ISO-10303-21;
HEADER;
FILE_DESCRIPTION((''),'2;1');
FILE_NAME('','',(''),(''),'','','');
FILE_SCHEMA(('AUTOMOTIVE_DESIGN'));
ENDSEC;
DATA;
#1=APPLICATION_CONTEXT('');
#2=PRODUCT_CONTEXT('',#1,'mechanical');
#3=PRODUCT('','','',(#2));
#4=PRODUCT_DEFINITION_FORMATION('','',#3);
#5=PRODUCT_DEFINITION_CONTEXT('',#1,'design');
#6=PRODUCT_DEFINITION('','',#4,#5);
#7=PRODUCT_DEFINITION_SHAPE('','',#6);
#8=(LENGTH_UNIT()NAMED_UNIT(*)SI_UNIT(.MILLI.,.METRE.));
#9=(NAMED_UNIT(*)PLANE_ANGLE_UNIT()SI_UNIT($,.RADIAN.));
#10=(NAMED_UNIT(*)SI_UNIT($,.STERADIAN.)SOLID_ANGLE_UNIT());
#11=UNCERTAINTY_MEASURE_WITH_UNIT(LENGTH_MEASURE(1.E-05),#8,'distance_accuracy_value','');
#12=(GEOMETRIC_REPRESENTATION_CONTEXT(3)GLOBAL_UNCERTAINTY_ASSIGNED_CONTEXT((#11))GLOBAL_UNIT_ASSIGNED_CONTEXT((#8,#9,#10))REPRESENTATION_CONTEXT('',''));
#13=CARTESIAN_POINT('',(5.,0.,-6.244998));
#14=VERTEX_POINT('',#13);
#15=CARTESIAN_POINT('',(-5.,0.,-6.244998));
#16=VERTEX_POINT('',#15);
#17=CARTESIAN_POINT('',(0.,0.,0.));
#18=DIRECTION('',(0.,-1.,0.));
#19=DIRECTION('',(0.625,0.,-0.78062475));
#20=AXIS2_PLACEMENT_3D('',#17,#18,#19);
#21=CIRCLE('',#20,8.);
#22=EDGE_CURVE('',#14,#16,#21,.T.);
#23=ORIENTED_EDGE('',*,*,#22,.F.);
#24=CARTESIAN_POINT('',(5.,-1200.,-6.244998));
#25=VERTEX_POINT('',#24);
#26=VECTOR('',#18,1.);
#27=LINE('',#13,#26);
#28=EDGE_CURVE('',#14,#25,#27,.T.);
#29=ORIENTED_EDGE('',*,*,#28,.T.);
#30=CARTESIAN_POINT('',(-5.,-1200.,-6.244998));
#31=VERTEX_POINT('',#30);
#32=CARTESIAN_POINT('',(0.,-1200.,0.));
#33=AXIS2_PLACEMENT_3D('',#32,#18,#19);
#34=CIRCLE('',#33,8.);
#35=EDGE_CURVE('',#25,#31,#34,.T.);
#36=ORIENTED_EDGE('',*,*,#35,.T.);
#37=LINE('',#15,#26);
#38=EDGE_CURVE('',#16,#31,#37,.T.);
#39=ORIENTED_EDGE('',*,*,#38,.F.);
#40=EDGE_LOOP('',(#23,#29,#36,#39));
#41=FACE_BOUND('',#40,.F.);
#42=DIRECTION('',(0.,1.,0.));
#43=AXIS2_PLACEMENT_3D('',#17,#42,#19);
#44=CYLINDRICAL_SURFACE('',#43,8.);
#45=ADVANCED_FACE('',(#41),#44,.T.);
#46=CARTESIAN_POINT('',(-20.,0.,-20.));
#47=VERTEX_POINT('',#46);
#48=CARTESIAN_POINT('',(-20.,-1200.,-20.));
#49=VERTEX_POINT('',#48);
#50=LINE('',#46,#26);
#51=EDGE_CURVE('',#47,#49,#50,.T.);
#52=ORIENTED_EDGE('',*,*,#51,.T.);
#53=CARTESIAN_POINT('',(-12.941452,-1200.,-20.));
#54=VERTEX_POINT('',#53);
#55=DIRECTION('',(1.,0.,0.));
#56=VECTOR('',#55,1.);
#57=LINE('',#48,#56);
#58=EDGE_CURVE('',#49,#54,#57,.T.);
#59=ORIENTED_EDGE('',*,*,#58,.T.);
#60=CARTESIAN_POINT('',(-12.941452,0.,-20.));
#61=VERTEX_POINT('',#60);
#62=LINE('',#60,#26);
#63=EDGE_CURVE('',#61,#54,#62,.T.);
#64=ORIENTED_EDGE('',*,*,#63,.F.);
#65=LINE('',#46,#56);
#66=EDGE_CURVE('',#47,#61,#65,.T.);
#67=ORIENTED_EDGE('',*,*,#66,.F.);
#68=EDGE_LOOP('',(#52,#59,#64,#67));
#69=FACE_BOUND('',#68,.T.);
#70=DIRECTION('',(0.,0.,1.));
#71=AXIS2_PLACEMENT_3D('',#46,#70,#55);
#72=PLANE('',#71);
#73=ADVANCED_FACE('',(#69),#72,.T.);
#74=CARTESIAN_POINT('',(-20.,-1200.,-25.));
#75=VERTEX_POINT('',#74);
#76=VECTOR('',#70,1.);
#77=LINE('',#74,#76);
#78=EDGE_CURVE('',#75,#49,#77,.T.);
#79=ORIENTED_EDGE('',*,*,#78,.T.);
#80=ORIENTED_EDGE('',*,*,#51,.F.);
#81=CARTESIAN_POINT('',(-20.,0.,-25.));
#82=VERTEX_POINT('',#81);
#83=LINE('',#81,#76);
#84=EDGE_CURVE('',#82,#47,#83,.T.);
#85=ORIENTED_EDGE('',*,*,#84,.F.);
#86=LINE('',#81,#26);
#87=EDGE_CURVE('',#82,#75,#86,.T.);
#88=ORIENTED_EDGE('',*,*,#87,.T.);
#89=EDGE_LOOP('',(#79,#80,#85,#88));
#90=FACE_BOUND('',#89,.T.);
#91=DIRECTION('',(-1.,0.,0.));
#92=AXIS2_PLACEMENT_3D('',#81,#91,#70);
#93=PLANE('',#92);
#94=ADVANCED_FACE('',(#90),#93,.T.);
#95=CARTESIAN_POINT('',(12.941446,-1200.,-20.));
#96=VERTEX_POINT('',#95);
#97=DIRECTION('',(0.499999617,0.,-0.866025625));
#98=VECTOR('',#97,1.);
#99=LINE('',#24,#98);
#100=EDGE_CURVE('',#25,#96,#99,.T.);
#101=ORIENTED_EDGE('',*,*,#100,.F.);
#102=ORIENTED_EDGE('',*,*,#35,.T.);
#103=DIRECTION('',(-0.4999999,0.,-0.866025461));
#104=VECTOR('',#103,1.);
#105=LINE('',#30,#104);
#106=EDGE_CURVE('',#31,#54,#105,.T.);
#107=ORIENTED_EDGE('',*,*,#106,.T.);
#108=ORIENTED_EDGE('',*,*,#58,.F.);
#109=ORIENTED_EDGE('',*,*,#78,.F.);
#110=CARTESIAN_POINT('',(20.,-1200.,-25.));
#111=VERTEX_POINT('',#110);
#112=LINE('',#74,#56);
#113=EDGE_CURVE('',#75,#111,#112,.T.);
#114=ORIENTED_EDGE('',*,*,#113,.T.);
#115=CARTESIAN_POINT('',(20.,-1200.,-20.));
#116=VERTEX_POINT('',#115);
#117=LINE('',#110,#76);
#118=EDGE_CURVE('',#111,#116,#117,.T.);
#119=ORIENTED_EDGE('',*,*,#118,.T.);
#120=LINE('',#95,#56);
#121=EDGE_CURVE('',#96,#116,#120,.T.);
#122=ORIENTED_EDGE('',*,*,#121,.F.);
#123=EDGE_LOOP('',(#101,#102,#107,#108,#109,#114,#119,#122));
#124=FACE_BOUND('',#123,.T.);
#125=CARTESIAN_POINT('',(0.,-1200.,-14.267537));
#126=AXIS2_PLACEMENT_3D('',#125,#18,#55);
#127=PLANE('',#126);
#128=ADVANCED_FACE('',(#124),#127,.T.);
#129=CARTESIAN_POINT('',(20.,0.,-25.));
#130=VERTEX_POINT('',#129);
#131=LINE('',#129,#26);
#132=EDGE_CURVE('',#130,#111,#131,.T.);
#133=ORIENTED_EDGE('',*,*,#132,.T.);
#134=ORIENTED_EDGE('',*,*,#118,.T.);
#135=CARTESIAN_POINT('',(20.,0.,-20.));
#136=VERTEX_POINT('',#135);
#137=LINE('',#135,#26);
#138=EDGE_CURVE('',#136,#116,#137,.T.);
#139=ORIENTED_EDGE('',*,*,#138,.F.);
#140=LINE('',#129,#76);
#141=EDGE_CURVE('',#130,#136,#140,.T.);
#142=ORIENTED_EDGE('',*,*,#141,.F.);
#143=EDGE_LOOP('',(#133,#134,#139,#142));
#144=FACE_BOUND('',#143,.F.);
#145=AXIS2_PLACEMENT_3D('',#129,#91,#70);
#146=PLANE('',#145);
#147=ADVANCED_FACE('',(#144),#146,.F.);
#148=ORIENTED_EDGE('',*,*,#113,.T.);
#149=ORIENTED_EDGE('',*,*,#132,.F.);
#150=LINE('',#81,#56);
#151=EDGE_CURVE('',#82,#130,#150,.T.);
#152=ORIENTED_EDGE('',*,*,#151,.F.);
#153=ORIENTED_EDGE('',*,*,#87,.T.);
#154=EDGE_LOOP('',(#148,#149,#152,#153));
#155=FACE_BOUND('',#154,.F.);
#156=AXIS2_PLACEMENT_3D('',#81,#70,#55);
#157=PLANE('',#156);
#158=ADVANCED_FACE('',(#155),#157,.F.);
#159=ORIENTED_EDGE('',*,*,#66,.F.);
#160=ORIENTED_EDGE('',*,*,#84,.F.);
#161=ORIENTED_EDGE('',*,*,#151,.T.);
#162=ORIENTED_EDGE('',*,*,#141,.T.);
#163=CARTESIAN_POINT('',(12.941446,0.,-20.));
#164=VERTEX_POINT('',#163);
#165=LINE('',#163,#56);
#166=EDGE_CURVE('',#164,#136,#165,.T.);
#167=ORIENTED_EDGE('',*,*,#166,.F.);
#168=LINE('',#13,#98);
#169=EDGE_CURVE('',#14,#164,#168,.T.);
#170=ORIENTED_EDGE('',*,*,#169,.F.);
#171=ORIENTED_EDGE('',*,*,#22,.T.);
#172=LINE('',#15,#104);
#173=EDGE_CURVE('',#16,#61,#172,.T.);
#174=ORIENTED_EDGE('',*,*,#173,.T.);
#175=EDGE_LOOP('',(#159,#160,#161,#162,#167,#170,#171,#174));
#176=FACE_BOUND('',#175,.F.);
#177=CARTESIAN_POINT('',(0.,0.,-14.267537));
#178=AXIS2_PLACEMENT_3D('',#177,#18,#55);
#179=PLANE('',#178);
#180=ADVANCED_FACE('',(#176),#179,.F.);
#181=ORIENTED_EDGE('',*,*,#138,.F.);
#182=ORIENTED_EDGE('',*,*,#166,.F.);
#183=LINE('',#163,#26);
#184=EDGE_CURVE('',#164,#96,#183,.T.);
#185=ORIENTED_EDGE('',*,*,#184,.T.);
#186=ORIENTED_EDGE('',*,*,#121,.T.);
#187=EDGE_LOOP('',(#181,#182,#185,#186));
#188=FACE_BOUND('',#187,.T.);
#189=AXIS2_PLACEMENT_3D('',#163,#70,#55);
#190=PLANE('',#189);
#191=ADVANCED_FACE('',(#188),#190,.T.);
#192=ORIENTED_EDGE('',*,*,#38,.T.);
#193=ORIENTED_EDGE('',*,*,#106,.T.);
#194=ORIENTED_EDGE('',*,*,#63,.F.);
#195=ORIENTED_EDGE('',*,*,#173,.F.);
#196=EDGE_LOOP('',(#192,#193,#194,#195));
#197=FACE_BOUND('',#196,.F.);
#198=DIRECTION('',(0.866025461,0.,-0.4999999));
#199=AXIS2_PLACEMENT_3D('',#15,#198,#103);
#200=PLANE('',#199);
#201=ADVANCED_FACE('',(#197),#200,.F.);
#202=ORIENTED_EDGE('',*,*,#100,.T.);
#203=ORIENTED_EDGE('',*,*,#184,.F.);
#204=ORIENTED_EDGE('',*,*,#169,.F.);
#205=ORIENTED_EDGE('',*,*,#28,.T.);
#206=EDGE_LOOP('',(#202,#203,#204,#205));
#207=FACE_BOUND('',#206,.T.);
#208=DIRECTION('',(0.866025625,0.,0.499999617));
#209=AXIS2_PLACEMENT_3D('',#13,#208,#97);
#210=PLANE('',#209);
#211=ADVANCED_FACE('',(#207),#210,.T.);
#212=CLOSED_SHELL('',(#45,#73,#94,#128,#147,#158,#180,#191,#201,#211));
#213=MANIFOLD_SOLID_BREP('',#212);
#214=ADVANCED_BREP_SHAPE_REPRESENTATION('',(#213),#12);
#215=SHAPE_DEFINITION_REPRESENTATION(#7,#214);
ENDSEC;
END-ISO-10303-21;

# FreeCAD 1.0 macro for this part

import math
import FreeCAD as App
import Part
import Sketcher
Q = App.Units.Quantity

doc = App.newDocument("Part")
body = doc.addObject("PartDesign::Body", "Body")

# Sketch on XZ plane
sketch1 = doc.addObject("Sketcher::SketchObject", "Sketch")
body.addObject(sketch1)
sketch1.AttachmentSupport = (doc.XZ_Plane, [""])
sketch1.MapMode = "FlatFace"
sketch1.addGeometry([
    Part.ArcOfCircle(Part.Circle(App.Vector(0, 0, 0), App.Vector(0, 0, 1), 8), math.radians(-51), math.radians(231)),  # 0
    Part.LineSegment(App.Vector(-5, -6, 0), App.Vector(-13, -20, 0)),  # 1
    Part.LineSegment(App.Vector(-13, -20, 0), App.Vector(-20, -20, 0)),  # 2
    Part.LineSegment(App.Vector(-20, -20, 0), App.Vector(-20, -25, 0)),  # 3
    Part.LineSegment(App.Vector(-20, -25, 0), App.Vector(20, -25, 0)),  # 4
    Part.LineSegment(App.Vector(20, -25, 0), App.Vector(20, -20, 0)),  # 5
    Part.LineSegment(App.Vector(20, -20, 0), App.Vector(13, -20, 0)),  # 6
    Part.LineSegment(App.Vector(13, -20, 0), App.Vector(5, -6, 0)),  # 7
], False)
sketch1.addConstraint([
    Sketcher.Constraint("Coincident", 0, 2, 1, 1),
    Sketcher.Constraint("Coincident", 1, 2, 2, 1),
    Sketcher.Constraint("Coincident", 2, 2, 3, 1),
    Sketcher.Constraint("Coincident", 3, 2, 4, 1),
    Sketcher.Constraint("Coincident", 4, 2, 5, 1),
    Sketcher.Constraint("Coincident", 5, 2, 6, 1),
    Sketcher.Constraint("Coincident", 6, 2, 7, 1),
    Sketcher.Constraint("Coincident", 7, 2, 0, 1),
    Sketcher.Constraint("Horizontal", 2),
    Sketcher.Constraint("Vertical", 3),
    Sketcher.Constraint("Horizontal", 4),
    Sketcher.Constraint("Vertical", 5),
    Sketcher.Constraint("Horizontal", 6),
    Sketcher.Constraint("Coincident", 0, 3, -1, 1),
    Sketcher.Constraint("Symmetric", 2, 2, 5, 2, -2),
    Sketcher.Constraint("Horizontal", 0, 2, 7, 2),
    Sketcher.Constraint("Radius", 0, Q("8 mm")),
    Sketcher.Constraint("DistanceX", 4, 1, 4, 2, Q("40 mm")),
    Sketcher.Constraint("DistanceY", 3, 2, 3, 1, Q("5 mm")),
    Sketcher.Constraint("Angle", 1, Q("-119.999993 deg")),
    Sketcher.Constraint("DistanceX", 0, 2, -1, 1, Q("5 mm")),
    Sketcher.Constraint("DistanceY", 1, 2, -1, 1, Q("20 mm")),
    Sketcher.Constraint("DistanceX", 6, 2, 6, 1, Q("7.058554 mm")),
])
pad1 = doc.addObject("PartDesign::Pad", "Pad")
body.addObject(pad1)
pad1.Profile = sketch1
pad1.Length = 1200

doc.recompute()
